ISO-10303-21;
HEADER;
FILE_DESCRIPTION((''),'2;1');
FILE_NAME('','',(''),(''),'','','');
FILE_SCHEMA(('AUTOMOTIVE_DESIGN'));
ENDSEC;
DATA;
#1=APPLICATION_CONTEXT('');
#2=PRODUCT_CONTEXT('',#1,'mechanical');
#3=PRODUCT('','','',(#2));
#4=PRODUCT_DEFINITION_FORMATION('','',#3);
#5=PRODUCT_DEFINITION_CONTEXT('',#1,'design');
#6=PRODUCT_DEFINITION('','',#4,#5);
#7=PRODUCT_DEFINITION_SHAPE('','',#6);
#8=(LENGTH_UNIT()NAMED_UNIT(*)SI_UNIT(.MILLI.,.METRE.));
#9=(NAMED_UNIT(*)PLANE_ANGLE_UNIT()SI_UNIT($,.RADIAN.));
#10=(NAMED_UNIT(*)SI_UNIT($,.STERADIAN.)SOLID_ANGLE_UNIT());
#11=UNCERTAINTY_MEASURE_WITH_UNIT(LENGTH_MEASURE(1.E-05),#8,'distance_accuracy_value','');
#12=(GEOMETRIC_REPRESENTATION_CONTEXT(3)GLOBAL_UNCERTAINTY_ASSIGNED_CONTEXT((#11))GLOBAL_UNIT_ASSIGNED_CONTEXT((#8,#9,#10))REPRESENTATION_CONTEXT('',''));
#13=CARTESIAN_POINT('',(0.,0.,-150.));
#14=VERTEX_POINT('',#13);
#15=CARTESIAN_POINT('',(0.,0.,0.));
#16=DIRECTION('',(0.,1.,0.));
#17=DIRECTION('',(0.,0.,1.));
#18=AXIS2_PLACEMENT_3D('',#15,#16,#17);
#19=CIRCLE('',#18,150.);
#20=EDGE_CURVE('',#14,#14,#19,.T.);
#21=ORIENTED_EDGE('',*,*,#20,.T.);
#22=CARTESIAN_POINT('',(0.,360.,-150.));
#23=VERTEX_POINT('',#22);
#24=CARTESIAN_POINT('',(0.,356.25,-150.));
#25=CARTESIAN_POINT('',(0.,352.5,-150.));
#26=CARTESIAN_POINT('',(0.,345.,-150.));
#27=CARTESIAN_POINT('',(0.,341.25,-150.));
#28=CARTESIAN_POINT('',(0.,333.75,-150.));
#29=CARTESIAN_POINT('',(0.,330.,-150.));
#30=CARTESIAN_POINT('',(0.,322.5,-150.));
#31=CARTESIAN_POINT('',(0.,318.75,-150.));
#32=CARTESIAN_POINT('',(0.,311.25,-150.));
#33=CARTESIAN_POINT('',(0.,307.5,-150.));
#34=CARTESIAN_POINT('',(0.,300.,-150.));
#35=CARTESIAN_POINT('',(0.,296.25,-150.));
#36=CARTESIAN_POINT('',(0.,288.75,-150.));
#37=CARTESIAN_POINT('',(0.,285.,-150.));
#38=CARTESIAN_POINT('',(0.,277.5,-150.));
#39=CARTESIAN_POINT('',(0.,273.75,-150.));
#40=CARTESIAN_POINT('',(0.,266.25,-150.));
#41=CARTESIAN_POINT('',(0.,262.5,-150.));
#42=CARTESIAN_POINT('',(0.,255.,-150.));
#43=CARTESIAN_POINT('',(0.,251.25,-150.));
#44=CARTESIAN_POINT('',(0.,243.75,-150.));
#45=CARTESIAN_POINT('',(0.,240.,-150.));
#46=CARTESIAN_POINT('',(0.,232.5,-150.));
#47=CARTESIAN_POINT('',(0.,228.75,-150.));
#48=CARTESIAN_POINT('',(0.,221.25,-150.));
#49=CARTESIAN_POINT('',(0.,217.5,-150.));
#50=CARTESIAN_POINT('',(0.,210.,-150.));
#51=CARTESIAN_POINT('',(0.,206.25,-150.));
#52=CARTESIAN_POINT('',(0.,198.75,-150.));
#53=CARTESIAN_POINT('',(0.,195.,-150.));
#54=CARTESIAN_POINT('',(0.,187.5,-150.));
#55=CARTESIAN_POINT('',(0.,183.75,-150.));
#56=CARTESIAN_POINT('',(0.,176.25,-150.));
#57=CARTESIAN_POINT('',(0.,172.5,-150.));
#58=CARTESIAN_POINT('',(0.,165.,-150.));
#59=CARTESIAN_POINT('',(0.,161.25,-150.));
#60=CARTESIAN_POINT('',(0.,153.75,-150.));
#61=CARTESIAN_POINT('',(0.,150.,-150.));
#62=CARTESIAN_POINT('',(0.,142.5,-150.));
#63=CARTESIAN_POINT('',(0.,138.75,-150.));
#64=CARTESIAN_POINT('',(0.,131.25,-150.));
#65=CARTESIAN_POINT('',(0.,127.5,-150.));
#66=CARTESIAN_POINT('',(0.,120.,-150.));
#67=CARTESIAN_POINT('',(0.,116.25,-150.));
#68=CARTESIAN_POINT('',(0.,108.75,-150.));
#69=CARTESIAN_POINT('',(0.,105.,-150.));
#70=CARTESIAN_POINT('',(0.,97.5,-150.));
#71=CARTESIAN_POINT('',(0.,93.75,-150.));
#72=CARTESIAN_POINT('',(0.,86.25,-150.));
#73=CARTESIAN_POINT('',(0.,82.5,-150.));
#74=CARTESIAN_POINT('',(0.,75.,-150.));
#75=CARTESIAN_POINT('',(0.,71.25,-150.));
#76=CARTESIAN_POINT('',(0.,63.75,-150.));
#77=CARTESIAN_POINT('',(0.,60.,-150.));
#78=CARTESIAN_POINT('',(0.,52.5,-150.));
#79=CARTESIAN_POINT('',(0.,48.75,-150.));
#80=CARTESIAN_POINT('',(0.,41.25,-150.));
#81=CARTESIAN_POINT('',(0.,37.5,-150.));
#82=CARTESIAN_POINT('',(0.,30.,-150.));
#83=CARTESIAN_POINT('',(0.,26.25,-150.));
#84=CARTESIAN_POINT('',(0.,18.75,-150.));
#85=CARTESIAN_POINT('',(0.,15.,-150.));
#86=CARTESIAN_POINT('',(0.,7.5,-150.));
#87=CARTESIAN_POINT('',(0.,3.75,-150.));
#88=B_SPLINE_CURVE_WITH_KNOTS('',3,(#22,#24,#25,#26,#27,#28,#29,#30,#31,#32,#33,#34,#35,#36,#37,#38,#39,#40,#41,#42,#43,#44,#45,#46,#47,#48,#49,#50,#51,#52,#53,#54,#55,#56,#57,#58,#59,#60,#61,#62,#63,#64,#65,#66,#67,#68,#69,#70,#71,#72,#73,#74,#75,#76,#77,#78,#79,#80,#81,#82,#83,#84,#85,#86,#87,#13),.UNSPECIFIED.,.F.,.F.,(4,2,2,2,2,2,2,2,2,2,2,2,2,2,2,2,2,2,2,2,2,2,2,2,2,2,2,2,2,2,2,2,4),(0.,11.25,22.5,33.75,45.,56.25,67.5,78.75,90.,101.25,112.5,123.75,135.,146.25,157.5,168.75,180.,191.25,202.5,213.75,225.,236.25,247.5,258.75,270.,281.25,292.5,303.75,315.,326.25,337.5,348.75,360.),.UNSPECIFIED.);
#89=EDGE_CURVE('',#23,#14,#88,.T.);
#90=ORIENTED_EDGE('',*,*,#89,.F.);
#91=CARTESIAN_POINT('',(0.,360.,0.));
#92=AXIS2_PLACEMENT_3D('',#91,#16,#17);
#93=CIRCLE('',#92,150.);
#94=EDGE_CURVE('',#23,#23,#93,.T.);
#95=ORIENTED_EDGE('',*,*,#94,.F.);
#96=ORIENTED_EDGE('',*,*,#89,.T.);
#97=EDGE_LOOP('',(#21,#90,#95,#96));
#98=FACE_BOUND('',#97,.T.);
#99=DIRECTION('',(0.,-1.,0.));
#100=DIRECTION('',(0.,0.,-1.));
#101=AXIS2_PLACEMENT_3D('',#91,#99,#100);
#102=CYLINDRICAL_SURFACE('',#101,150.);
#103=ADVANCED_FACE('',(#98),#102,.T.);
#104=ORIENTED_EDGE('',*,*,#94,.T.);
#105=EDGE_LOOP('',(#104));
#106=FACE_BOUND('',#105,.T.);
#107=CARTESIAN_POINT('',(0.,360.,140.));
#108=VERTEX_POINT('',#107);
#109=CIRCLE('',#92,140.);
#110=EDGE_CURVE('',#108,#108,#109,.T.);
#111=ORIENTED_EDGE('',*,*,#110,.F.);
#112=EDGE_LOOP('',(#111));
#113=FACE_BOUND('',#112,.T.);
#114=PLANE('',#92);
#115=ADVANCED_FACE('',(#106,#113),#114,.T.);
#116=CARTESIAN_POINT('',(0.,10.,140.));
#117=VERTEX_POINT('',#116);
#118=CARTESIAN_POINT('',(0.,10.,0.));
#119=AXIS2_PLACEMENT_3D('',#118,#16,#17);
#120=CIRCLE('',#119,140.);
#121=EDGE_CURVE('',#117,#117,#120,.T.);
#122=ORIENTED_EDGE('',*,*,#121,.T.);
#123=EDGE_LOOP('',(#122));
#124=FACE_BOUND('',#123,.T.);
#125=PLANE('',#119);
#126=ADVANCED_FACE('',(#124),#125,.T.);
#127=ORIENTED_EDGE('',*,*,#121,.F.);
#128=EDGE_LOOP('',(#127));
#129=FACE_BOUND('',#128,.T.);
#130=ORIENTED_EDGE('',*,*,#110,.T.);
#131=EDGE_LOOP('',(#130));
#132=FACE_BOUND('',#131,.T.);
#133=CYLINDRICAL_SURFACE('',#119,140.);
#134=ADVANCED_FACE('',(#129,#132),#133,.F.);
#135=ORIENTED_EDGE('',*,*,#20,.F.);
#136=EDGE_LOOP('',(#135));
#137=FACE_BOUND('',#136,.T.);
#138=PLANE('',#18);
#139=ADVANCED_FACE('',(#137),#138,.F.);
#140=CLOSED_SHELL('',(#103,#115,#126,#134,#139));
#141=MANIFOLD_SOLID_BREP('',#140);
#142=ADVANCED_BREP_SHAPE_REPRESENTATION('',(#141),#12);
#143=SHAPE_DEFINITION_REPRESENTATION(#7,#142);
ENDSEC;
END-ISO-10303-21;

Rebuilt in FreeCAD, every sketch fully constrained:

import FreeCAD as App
import Part
import Sketcher
from FreeCAD import Vector
Q = App.Units.Quantity

doc = App.newDocument("Part")
body = doc.addObject("PartDesign::Body", "Body")

sketch1 = doc.addObject("Sketcher::SketchObject", "Sketch")
body.addObject(sketch1)
sketch1.AttachmentSupport = (doc.XZ_Plane, [""])
sketch1.MapMode = "FlatFace"
sketch1.addGeometry(Part.Circle(Vector(0, 0, 0), Vector(0, 0, 1), 150), False)
sketch1.addConstraint(Sketcher.Constraint("Coincident", 0, 3, -1, 1))
sketch1.addConstraint(Sketcher.Constraint("Diameter", 0, Q("300 mm")))
pad1 = doc.addObject("PartDesign::Pad", "Pad")
body.addObject(pad1)
pad1.Profile = sketch1
pad1.Length = 360
pad1.Reversed = True

sketch2 = doc.addObject("Sketcher::SketchObject", "Sketch001")
body.addObject(sketch2)
sketch2.AttachmentSupport = (doc.XZ_Plane, [""])
sketch2.MapMode = "FlatFace"
sketch2.AttachmentOffset = App.Placement(Vector(0, 0, -360), App.Rotation())
sketch2.addGeometry(Part.Circle(Vector(0, 0, 0), Vector(0, 0, 1), 140), False)
sketch2.addConstraint(Sketcher.Constraint("Coincident", 0, 3, -1, 1))
sketch2.addConstraint(Sketcher.Constraint("Diameter", 0, Q("280 mm")))
pocket1 = doc.addObject("PartDesign::Pocket", "Pocket")
body.addObject(pocket1)
pocket1.Profile = sketch2
pocket1.Length = 350
pocket1.Reversed = True

doc.recompute()
